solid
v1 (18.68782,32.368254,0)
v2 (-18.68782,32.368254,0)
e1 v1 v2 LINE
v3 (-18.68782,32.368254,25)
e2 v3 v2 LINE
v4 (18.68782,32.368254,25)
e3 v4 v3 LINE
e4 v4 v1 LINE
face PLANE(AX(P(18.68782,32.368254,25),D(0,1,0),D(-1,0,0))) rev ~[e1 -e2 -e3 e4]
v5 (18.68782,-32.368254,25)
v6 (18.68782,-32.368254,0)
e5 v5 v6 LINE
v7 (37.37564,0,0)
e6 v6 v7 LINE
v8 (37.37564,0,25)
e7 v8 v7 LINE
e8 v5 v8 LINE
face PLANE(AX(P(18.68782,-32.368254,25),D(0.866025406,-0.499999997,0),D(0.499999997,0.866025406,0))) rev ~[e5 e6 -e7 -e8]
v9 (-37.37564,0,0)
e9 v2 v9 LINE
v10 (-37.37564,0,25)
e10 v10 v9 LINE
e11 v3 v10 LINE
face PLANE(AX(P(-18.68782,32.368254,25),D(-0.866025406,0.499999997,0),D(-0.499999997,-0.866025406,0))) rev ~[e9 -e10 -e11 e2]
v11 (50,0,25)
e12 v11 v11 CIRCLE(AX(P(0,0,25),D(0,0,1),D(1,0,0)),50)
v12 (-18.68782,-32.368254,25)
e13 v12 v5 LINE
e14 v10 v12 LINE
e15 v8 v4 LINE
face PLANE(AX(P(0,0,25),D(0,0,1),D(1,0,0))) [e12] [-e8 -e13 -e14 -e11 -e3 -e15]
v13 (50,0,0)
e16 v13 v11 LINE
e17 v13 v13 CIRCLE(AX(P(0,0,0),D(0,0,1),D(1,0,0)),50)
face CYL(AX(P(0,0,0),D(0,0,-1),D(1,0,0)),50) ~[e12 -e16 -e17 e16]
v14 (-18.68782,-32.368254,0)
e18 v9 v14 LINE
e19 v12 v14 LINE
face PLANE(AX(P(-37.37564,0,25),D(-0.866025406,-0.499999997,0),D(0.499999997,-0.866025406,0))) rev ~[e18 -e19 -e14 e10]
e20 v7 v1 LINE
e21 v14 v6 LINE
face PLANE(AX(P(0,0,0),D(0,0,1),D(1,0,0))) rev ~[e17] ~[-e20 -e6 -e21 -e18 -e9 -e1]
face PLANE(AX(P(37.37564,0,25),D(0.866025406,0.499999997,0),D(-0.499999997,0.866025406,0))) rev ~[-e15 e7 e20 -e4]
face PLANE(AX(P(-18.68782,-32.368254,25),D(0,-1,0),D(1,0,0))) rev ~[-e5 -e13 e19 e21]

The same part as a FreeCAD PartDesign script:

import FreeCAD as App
import Part
import Sketcher
Q = App.Units.Quantity

doc = App.newDocument("Part")
body = doc.addObject("PartDesign::Body", "Body")

sketch1 = body.newObject("Sketcher::SketchObject", "Sketch")
sketch1.AttachmentSupport = (doc.getObject("XY_Plane"), [""])
sketch1.MapMode = "FlatFace"
sketch1.addGeometry(Part.Circle(App.Vector(0, 0, 0), App.Vector(0, 0, 1), 50), False)
sketch1.addConstraint([
    Sketcher.Constraint("Coincident", 0, 3, -1, 1),
    Sketcher.Constraint("Diameter", 0, Q("100 mm")),
])
pad1 = body.newObject("PartDesign::Pad", "Pad")
pad1.Profile = sketch1
pad1.Length = 25

sketch2 = body.newObject("Sketcher::SketchObject", "Sketch001")
sketch2.AttachmentSupport = (doc.getObject("XY_Plane"), [""])
sketch2.MapMode = "FlatFace"
sketch2.AttachmentOffset = App.Placement(App.Vector(0, 0, 25), App.Rotation())
sketch2.addGeometry([
    Part.LineSegment(App.Vector(19, -32, 0), App.Vector(37, 0, 0)),
    Part.LineSegment(App.Vector(37, 0, 0), App.Vector(19, 32, 0)),
    Part.LineSegment(App.Vector(19, 32, 0), App.Vector(-19, 32, 0)),
    Part.LineSegment(App.Vector(-19, 32, 0), App.Vector(-37, 0, 0)),
    Part.LineSegment(App.Vector(-37, 0, 0), App.Vector(-19, -32, 0)),
    Part.LineSegment(App.Vector(-19, -32, 0), App.Vector(19, -32, 0)),
], False)
sketch2.addConstraint([
    Sketcher.Constraint("Coincident", 0, 2, 1, 1),
    Sketcher.Constraint("Coincident", 1, 2, 2, 1),
    Sketcher.Constraint("Coincident", 2, 2, 3, 1),
    Sketcher.Constraint("Coincident", 3, 2, 4, 1),
    Sketcher.Constraint("Coincident", 4, 2, 5, 1),
    Sketcher.Constraint("Coincident", 5, 2, 0, 1),
    Sketcher.Constraint("Horizontal", 2),
    Sketcher.Constraint("Horizontal", 5),
    Sketcher.Constraint("Symmetric", 0, 2, 3, 2, -1, 1),
    Sketcher.Constraint("Symmetric", 1, 2, 4, 2, -1, 1),
    Sketcher.Constraint("PointOnObject", 0, 2, -1),
    Sketcher.Constraint("Parallel", 0, 3),
    Sketcher.Constraint("Vertical", 2, 2, 4, 2),
    Sketcher.Constraint("Angle", 0, Q("60 deg")),
    Sketcher.Constraint("DistanceX", 2, 2, 2, 1, Q("37.37564 mm")),
    Sketcher.Constraint("Distance", 0, Q("37.37564 mm")),
])
pocket1 = body.newObject("PartDesign::Pocket", "Pocket")
pocket1.Profile = sketch2
pocket1.Type = "ThroughAll"

doc.recompute()
